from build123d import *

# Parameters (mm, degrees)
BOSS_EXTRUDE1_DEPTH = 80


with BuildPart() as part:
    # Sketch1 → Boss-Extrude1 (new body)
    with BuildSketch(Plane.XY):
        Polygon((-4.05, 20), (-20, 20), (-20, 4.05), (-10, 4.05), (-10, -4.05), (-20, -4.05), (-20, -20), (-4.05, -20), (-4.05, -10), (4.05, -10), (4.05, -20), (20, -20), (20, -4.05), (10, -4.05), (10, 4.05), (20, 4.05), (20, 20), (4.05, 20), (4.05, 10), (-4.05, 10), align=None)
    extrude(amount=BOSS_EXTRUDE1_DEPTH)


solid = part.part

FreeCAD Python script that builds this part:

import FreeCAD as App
import Part
import Sketcher

V = App.Vector
Q = App.Units.Quantity

doc = App.newDocument("Part")
body = doc.addObject("PartDesign::Body", "Body")

# Sketch on XY plane
sketch1 = body.newObject("Sketcher::SketchObject", "Sketch")
sketch1.AttachmentSupport = (doc.getObject("XY_Plane"), [""])
sketch1.MapMode = "FlatFace"
sketch1.addGeometry(Part.LineSegment(V(-4, 20, 0), V(-20, 20, 0)), False)
sketch1.addGeometry(Part.LineSegment(V(-20, 20, 0), V(-20, 4, 0)), False)
sketch1.addGeometry(Part.LineSegment(V(-20, 4, 0), V(-10, 4, 0)), False)
sketch1.addGeometry(Part.LineSegment(V(-10, 4, 0), V(-10, -4, 0)), False)
sketch1.addGeometry(Part.LineSegment(V(-10, -4, 0), V(-20, -4, 0)), False)
sketch1.addGeometry(Part.LineSegment(V(-20, -4, 0), V(-20, -20, 0)), False)
sketch1.addGeometry(Part.LineSegment(V(-20, -20, 0), V(-4, -20, 0)), False)
sketch1.addGeometry(Part.LineSegment(V(-4, -20, 0), V(-4, -10, 0)), False)
sketch1.addGeometry(Part.LineSegment(V(-4, -10, 0), V(4, -10, 0)), False)
sketch1.addGeometry(Part.LineSegment(V(4, -10, 0), V(4, -20, 0)), False)
sketch1.addGeometry(Part.LineSegment(V(4, -20, 0), V(20, -20, 0)), False)
sketch1.addGeometry(Part.LineSegment(V(20, -20, 0), V(20, -4, 0)), False)
sketch1.addGeometry(Part.LineSegment(V(20, -4, 0), V(10, -4, 0)), False)
sketch1.addGeometry(Part.LineSegment(V(10, -4, 0), V(10, 4, 0)), False)
sketch1.addGeometry(Part.LineSegment(V(10, 4, 0), V(20, 4, 0)), False)
sketch1.addGeometry(Part.LineSegment(V(20, 4, 0), V(20, 20, 0)), False)
sketch1.addGeometry(Part.LineSegment(V(20, 20, 0), V(4, 20, 0)), False)
sketch1.addGeometry(Part.LineSegment(V(4, 20, 0), V(4, 10, 0)), False)
sketch1.addGeometry(Part.LineSegment(V(4, 10, 0), V(-4, 10, 0)), False)
sketch1.addGeometry(Part.LineSegment(V(-4, 10, 0), V(-4, 20, 0)), False)
sketch1.addConstraint(Sketcher.Constraint("Coincident", 0, 2, 1, 1))
sketch1.addConstraint(Sketcher.Constraint("Coincident", 1, 2, 2, 1))
sketch1.addConstraint(Sketcher.Constraint("Coincident", 2, 2, 3, 1))
sketch1.addConstraint(Sketcher.Constraint("Coincident", 3, 2, 4, 1))
sketch1.addConstraint(Sketcher.Constraint("Coincident", 4, 2, 5, 1))
sketch1.addConstraint(Sketcher.Constraint("Coincident", 5, 2, 6, 1))
sketch1.addConstraint(Sketcher.Constraint("Coincident", 6, 2, 7, 1))
sketch1.addConstraint(Sketcher.Constraint("Coincident", 7, 2, 8, 1))
sketch1.addConstraint(Sketcher.Constraint("Coincident", 8, 2, 9, 1))
sketch1.addConstraint(Sketcher.Constraint("Coincident", 9, 2, 10, 1))
sketch1.addConstraint(Sketcher.Constraint("Coincident", 10, 2, 11, 1))
sketch1.addConstraint(Sketcher.Constraint("Coincident", 11, 2, 12, 1))
sketch1.addConstraint(Sketcher.Constraint("Coincident", 12, 2, 13, 1))
sketch1.addConstraint(Sketcher.Constraint("Coincident", 13, 2, 14, 1))
sketch1.addConstraint(Sketcher.Constraint("Coincident", 14, 2, 15, 1))
sketch1.addConstraint(Sketcher.Constraint("Coincident", 15, 2, 16, 1))
sketch1.addConstraint(Sketcher.Constraint("Coincident", 16, 2, 17, 1))
sketch1.addConstraint(Sketcher.Constraint("Coincident", 17, 2, 18, 1))
sketch1.addConstraint(Sketcher.Constraint("Coincident", 18, 2, 19, 1))
sketch1.addConstraint(Sketcher.Constraint("Coincident", 19, 2, 0, 1))
sketch1.addConstraint(Sketcher.Constraint("Horizontal", 0))
sketch1.addConstraint(Sketcher.Constraint("Vertical", 1))
sketch1.addConstraint(Sketcher.Constraint("Horizontal", 2))
sketch1.addConstraint(Sketcher.Constraint("Vertical", 3))
sketch1.addConstraint(Sketcher.Constraint("Horizontal", 4))
sketch1.addConstraint(Sketcher.Constraint("Vertical", 5))
sketch1.addConstraint(Sketcher.Constraint("Horizontal", 6))
sketch1.addConstraint(Sketcher.Constraint("Vertical", 7))
sketch1.addConstraint(Sketcher.Constraint("Horizontal", 8))
sketch1.addConstraint(Sketcher.Constraint("Vertical", 9))
sketch1.addConstraint(Sketcher.Constraint("Horizontal", 10))
sketch1.addConstraint(Sketcher.Constraint("Vertical", 11))
sketch1.addConstraint(Sketcher.Constraint("Horizontal", 12))
sketch1.addConstraint(Sketcher.Constraint("Vertical", 13))
sketch1.addConstraint(Sketcher.Constraint("Horizontal", 14))
sketch1.addConstraint(Sketcher.Constraint("Vertical", 15))
sketch1.addConstraint(Sketcher.Constraint("Horizontal", 16))
sketch1.addConstraint(Sketcher.Constraint("Vertical", 17))
sketch1.addConstraint(Sketcher.Constraint("Horizontal", 18))
sketch1.addConstraint(Sketcher.Constraint("Vertical", 19))
sketch1.addConstraint(Sketcher.Constraint("Symmetric", 0, 2, 10, 2, -1, 1))
sketch1.addConstraint(Sketcher.Constraint("Symmetric", 2, 2, 12, 2, -1, 1))
sketch1.addConstraint(Sketcher.Constraint("Symmetric", 4, 2, 14, 2, -1, 1))
sketch1.addConstraint(Sketcher.Constraint("Symmetric", 6, 2, 16, 2, -1, 1))
sketch1.addConstraint(Sketcher.Constraint("Symmetric", 8, 2, 18, 2, -1, 1))
sketch1.addConstraint(Sketcher.Constraint("Symmetric", 6, 2, 9, 2, -2))
sketch1.addConstraint(Sketcher.Constraint("Symmetric", 4, 2, 11, 2, -2))
sketch1.addConstraint(Sketcher.Constraint("Equal", 16, 1))
sketch1.addConstraint(Sketcher.Constraint("Equal", 18, 3))
sketch1.addConstraint(Sketcher.Constraint("Equal", 14, 7))
sketch1.addConstraint(Sketcher.Constraint("DistanceX", 2, 1, 2, 2, Q("10 mm")))
sketch1.addConstraint(Sketcher.Constraint("DistanceX", 8, 1, 8, 2, Q("8.1 mm")))
sketch1.addConstraint(Sketcher.Constraint("DistanceX", 0, 2, -1, 1, Q("20 mm")))
pad1 = body.newObject("PartDesign::Pad", "Pad")
pad1.Profile = sketch1
pad1.Length = 80

doc.recompute()
